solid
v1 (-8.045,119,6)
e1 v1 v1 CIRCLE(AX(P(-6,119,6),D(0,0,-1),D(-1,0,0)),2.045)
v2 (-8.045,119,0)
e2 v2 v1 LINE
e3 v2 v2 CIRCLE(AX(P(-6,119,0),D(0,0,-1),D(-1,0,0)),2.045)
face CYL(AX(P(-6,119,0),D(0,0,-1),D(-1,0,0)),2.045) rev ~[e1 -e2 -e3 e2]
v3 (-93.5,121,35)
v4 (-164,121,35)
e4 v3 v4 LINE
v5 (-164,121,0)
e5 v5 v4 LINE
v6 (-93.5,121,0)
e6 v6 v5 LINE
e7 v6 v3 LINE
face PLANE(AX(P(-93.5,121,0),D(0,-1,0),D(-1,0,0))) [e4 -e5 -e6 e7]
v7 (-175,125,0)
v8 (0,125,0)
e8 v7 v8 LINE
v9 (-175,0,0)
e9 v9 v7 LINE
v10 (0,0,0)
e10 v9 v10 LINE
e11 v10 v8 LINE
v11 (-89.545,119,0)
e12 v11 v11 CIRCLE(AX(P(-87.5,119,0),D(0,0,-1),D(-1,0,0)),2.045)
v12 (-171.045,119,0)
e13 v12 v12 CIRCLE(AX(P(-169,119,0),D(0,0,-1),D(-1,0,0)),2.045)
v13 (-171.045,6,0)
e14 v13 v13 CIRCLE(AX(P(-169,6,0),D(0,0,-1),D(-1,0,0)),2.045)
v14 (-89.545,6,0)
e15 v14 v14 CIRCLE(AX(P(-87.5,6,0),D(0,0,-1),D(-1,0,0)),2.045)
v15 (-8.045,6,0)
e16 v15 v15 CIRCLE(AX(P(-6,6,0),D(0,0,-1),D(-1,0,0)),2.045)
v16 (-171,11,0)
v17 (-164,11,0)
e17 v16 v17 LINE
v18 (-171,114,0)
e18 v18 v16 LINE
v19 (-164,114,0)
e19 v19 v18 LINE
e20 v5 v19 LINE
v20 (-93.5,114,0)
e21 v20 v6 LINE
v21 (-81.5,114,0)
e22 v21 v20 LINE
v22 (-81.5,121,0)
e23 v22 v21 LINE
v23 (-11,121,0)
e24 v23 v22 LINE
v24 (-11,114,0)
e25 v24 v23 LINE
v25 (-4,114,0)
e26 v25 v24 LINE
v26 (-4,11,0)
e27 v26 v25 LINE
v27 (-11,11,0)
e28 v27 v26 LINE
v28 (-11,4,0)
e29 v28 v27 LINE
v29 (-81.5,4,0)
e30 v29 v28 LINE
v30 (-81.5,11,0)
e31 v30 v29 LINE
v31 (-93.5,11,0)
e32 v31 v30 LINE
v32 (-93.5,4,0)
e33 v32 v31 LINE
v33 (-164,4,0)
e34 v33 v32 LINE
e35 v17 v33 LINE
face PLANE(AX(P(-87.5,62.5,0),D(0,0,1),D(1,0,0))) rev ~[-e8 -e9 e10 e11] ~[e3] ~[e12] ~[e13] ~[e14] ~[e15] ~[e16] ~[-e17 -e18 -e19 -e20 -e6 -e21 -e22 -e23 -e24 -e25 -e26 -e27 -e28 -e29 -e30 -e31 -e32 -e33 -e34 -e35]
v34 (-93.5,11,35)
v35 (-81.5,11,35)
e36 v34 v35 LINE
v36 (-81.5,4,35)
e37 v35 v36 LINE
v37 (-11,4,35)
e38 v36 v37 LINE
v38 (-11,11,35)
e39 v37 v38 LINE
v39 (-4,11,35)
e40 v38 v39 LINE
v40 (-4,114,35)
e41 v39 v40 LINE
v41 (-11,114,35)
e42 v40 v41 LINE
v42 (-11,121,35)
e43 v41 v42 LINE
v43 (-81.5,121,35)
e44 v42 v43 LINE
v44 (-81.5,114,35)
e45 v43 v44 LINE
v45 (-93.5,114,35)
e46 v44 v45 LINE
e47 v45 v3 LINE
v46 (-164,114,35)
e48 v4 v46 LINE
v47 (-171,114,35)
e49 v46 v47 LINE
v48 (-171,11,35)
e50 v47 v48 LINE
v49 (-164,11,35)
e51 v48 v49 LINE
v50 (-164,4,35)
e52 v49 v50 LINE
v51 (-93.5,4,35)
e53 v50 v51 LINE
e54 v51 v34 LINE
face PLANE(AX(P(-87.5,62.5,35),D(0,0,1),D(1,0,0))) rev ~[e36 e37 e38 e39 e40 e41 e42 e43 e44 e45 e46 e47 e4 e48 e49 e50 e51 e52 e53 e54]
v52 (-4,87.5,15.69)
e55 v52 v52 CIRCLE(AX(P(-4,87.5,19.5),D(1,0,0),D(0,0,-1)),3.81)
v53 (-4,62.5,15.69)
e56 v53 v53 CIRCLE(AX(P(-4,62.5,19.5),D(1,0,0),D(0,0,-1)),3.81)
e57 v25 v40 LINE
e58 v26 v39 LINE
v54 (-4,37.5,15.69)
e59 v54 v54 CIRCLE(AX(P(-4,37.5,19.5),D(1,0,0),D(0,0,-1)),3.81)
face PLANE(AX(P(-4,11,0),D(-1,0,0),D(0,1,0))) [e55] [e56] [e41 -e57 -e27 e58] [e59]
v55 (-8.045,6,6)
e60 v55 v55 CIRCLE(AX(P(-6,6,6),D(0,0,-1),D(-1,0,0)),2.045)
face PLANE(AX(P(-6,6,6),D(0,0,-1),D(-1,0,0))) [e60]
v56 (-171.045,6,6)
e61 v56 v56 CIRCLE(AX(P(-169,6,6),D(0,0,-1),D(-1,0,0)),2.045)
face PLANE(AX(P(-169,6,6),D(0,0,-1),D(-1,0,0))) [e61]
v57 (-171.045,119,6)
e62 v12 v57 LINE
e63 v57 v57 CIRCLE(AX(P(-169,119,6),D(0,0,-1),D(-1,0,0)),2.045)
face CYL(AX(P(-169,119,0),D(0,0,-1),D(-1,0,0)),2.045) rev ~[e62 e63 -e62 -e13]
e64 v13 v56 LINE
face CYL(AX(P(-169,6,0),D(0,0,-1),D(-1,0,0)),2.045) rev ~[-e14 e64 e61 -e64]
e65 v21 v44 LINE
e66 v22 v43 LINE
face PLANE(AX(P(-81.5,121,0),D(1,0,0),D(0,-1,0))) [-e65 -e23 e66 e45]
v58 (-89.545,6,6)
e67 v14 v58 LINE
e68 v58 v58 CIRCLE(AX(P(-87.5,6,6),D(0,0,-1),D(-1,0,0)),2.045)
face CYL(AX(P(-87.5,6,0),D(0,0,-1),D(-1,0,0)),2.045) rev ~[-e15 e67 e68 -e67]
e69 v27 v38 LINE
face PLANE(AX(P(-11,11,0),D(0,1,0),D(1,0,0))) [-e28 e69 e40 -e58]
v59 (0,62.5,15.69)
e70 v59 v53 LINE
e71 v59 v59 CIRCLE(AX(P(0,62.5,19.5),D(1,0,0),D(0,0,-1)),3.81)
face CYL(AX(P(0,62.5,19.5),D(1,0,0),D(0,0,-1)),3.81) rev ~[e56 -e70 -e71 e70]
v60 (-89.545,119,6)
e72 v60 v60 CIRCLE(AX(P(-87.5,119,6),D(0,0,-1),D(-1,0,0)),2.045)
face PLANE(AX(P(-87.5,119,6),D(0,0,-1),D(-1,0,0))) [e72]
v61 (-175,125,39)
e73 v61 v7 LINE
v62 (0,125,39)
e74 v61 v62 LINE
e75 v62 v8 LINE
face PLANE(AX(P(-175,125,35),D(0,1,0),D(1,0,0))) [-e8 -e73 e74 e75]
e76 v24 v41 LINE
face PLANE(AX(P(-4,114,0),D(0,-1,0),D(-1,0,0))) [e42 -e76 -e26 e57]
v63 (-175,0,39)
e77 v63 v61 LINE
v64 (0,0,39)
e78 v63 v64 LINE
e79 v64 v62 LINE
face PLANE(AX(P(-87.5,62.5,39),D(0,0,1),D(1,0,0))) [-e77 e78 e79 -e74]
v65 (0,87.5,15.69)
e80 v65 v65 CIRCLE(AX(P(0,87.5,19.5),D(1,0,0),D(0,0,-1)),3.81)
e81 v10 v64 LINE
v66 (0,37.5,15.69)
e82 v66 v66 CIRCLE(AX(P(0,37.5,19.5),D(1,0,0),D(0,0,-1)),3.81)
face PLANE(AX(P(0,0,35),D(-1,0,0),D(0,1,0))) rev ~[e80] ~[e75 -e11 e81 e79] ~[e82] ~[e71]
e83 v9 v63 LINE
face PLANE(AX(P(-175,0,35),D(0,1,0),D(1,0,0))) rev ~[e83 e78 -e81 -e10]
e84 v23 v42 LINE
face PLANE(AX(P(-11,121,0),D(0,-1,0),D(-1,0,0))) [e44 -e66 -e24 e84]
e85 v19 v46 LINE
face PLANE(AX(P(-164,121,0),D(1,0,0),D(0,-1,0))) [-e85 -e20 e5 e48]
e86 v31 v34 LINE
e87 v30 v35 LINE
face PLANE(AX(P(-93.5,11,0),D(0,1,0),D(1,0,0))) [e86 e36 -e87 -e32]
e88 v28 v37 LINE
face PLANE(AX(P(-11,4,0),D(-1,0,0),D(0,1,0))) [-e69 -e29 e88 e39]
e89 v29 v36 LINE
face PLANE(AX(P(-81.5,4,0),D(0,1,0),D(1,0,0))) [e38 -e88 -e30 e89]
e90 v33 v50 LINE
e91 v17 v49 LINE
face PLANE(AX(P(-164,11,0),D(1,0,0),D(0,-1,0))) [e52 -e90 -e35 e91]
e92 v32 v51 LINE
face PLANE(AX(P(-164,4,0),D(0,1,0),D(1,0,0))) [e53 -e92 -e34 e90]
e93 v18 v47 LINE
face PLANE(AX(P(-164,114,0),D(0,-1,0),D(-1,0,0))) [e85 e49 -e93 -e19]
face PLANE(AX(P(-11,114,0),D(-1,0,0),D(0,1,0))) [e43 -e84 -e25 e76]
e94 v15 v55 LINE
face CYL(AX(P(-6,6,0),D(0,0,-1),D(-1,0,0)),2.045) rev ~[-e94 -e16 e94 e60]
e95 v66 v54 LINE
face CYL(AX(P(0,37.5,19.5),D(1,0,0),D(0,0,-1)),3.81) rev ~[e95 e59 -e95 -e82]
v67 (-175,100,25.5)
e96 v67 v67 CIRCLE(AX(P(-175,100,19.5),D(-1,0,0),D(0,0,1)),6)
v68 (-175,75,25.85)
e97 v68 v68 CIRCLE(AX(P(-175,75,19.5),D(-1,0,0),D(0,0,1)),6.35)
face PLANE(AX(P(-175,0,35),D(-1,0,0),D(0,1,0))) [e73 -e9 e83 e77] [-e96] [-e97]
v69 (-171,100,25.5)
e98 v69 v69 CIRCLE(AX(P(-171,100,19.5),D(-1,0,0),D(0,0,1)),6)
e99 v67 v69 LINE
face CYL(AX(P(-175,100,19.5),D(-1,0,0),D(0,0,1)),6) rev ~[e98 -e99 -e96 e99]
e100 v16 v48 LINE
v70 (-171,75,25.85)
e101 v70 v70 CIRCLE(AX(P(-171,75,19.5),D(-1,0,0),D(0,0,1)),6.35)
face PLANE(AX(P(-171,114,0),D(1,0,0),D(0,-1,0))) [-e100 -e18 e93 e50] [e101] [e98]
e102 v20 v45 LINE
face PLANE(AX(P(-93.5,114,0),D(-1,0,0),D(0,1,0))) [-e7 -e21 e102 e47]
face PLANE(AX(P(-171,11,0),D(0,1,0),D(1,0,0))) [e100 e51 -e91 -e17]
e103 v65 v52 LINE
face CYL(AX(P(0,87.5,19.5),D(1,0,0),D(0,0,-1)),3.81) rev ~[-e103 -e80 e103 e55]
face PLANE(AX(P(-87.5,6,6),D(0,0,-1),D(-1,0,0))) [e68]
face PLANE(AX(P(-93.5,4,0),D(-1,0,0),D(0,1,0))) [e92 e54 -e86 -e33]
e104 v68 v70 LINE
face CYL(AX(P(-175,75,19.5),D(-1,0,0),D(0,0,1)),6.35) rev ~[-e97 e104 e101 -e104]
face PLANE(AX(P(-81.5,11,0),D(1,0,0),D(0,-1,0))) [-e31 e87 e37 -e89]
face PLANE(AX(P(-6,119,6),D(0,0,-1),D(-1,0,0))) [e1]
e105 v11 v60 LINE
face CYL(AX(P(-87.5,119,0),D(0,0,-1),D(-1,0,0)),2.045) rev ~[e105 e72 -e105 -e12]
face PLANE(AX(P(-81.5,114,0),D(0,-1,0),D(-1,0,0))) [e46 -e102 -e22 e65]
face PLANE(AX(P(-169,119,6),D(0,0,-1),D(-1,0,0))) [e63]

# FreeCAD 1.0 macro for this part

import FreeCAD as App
import Part
import Sketcher

V = App.Vector
Q = App.Units.Quantity


def add_polygon(sketch, points):
    """Adds a closed chain of lines whose ends are joined by coincident constraints."""
    first, n = sketch.GeometryCount, len(points)
    for a, b in zip(points, points[1:] + points[:1]):
        sketch.addGeometry(Part.LineSegment(App.Vector(*a, 0), App.Vector(*b, 0)), False)
    for i in range(n):
        sketch.addConstraint(Sketcher.Constraint("Coincident", first + i, 2, first + (i + 1) % n, 1))

doc = App.newDocument("Part")
body = doc.addObject("PartDesign::Body", "Body")

sketch1 = body.newObject("Sketcher::SketchObject", "Sketch")
sketch1.AttachmentSupport = (doc.getObject("XY_Plane"), [""])
sketch1.MapMode = "FlatFace"
add_polygon(sketch1, [(-175, 125), (-175, 0), (0, 0), (0, 125)])
add_polygon(sketch1, [(-164, 121), (-94, 121), (-94, 114), (-82, 114), (-82, 121), (-11, 121), (-11, 114), (-4, 114), (-4, 11), (-11, 11), (-11, 4), (-82, 4), (-82, 11), (-94, 11), (-94, 4), (-164, 4), (-164, 11), (-171, 11), (-171, 114), (-164, 114)])
sketch1.addConstraint([
    Sketcher.Constraint("Vertical", 0),
    Sketcher.Constraint("Horizontal", 1),
    Sketcher.Constraint("Vertical", 2),
    Sketcher.Constraint("Horizontal", 3),
    Sketcher.Constraint("Horizontal", 4),
    Sketcher.Constraint("Vertical", 5),
    Sketcher.Constraint("Horizontal", 6),
    Sketcher.Constraint("Vertical", 7),
    Sketcher.Constraint("Horizontal", 8),
    Sketcher.Constraint("Vertical", 9),
    Sketcher.Constraint("Horizontal", 10),
    Sketcher.Constraint("Vertical", 11),
    Sketcher.Constraint("Horizontal", 12),
    Sketcher.Constraint("Vertical", 13),
    Sketcher.Constraint("Horizontal", 14),
    Sketcher.Constraint("Vertical", 15),
    Sketcher.Constraint("Horizontal", 16),
    Sketcher.Constraint("Vertical", 17),
    Sketcher.Constraint("Horizontal", 18),
    Sketcher.Constraint("Vertical", 19),
    Sketcher.Constraint("Horizontal", 20),
    Sketcher.Constraint("Vertical", 21),
    Sketcher.Constraint("Horizontal", 22),
    Sketcher.Constraint("Vertical", 23),
    Sketcher.Constraint("Coincident", 1, 2, -1, 1),
    Sketcher.Constraint("Horizontal", 4, 2, 7, 2),
    Sketcher.Constraint("Horizontal", 6, 2, 9, 2),
    Sketcher.Constraint("Horizontal", 12, 2, 15, 2),
    Sketcher.Constraint("Horizontal", 14, 2, 17, 2),
    Sketcher.Constraint("Horizontal", 16, 2, 19, 2),
    Sketcher.Constraint("Horizontal", 10, 2, 21, 2),
    Sketcher.Constraint("Vertical", 9, 2, 12, 2),
    Sketcher.Constraint("Vertical", 7, 2, 14, 2),
    Sketcher.Constraint("Vertical", 5, 2, 16, 2),
    Sketcher.Constraint("Vertical", 19, 2, 22, 2),
    Sketcher.Constraint("Equal", 4, 8),
    Sketcher.Constraint("Equal", 12, 20),
    Sketcher.Constraint("Equal", 22, 5),
    Sketcher.Constraint("Equal", 9, 13),
    Sketcher.Constraint("DistanceX", 1, 1, 1, 2, Q("175 mm")),
    Sketcher.Constraint("DistanceX", 6, 1, 6, 2, Q("12 mm")),
    Sketcher.Constraint("DistanceX", 10, 1, 10, 2, Q("7 mm")),
    Sketcher.Constraint("DistanceY", 0, 2, 0, 1, Q("125 mm")),
    Sketcher.Constraint("DistanceY", 11, 2, 11, 1, Q("103 mm")),
    Sketcher.Constraint("DistanceX", 4, 1, 4, 2, Q("70.5 mm")),
    Sketcher.Constraint("DistanceY", -1, 1, 4, 2, Q("121 mm")),
    Sketcher.Constraint("DistanceX", 8, 2, -1, 1, Q("11 mm")),
])
pad1 = body.newObject("PartDesign::Pad", "Pad")
pad1.Profile = sketch1
pad1.Length = 35

sketch2 = body.newObject("Sketcher::SketchObject", "Sketch001")
sketch2.AttachmentSupport = (doc.getObject("XY_Plane"), [""])
sketch2.MapMode = "FlatFace"
sketch2.AttachmentOffset = App.Placement(V(0, 0, 35), App.Rotation())
add_polygon(sketch2, [(-175, 125), (-175, 0), (0, 0), (0, 125)])
sketch2.addConstraint([
    Sketcher.Constraint("Vertical", 0),
    Sketcher.Constraint("Horizontal", 1),
    Sketcher.Constraint("Vertical", 2),
    Sketcher.Constraint("Horizontal", 3),
    Sketcher.Constraint("Coincident", 1, 2, -1, 1),
    Sketcher.Constraint("DistanceX", 1, 1, 1, 2, Q("175 mm")),
    Sketcher.Constraint("DistanceY", 0, 2, 0, 1, Q("125 mm")),
])
pad2 = body.newObject("PartDesign::Pad", "Pad001")
pad2.Profile = sketch2
pad2.Length = 4

sketch3 = body.newObject("Sketcher::SketchObject", "Sketch002")
sketch3.AttachmentSupport = (doc.getObject("XY_Plane"), [""])
sketch3.MapMode = "FlatFace"
sketch3.addGeometry([
    Part.Circle(V(-6, 119, 0), V(0, 0, 1), 2),
    Part.Circle(V(-87.5, 119, 0), V(0, 0, 1), 2),
    Part.Circle(V(-169, 119, 0), V(0, 0, 1), 2),
    Part.Circle(V(-169, 6, 0), V(0, 0, 1), 2),
    Part.Circle(V(-87.5, 6, 0), V(0, 0, 1), 2),
    Part.Circle(V(-6, 6, 0), V(0, 0, 1), 2),
], False)
sketch3.addConstraint([
    Sketcher.Constraint("Equal", 0, 1),
    Sketcher.Constraint("Equal", 1, 2),
    Sketcher.Constraint("Equal", 2, 3),
    Sketcher.Constraint("Equal", 3, 4),
    Sketcher.Constraint("Equal", 4, 5),
    Sketcher.Constraint("Horizontal", 0, 3, 1, 3),
    Sketcher.Constraint("Horizontal", 1, 3, 2, 3),
    Sketcher.Constraint("Horizontal", 3, 3, 4, 3),
    Sketcher.Constraint("Horizontal", 4, 3, 5, 3),
    Sketcher.Constraint("Vertical", 2, 3, 3, 3),
    Sketcher.Constraint("Vertical", 1, 3, 4, 3),
    Sketcher.Constraint("Vertical", 0, 3, 5, 3),
    Sketcher.Constraint("Diameter", 0, Q("4.09 mm")),
    Sketcher.Constraint("DistanceX", 0, 3, -1, 1, Q("6 mm")),
    Sketcher.Constraint("DistanceY", -1, 1, 0, 3, Q("119 mm")),
    Sketcher.Constraint("DistanceX", 2, 3, -1, 1, Q("169 mm")),
    Sketcher.Constraint("DistanceY", -1, 1, 3, 3, Q("6 mm")),
    Sketcher.Constraint("DistanceX", 1, 3, -1, 1, Q("87.5 mm")),
])
pocket1 = body.newObject("PartDesign::Pocket", "Pocket")
pocket1.Profile = sketch3
pocket1.Length = 6
pocket1.Reversed = True

sketch4 = body.newObject("Sketcher::SketchObject", "Sketch003")
sketch4.AttachmentSupport = (doc.getObject("YZ_Plane"), [""])
sketch4.MapMode = "FlatFace"
sketch4.addGeometry([
    Part.Circle(V(87.5, 19.5, 0), V(0, 0, 1), 3.8),
    Part.Circle(V(62.5, 19.5, 0), V(0, 0, 1), 3.8),
    Part.Circle(V(37.5, 19.5, 0), V(0, 0, 1), 3.8),
], False)
sketch4.addConstraint([
    Sketcher.Constraint("Equal", 0, 1),
    Sketcher.Constraint("Equal", 1, 2),
    Sketcher.Constraint("Horizontal", 0, 3, 1, 3),
    Sketcher.Constraint("Horizontal", 1, 3, 2, 3),
    Sketcher.Constraint("Diameter", 0, Q("7.62 mm")),
    Sketcher.Constraint("DistanceX", 1, 3, 0, 3, Q("25 mm")),
    Sketcher.Constraint("DistanceX", 2, 3, 1, 3, Q("25 mm")),
    Sketcher.Constraint("DistanceX", -1, 1, 0, 3, Q("87.5 mm")),
    Sketcher.Constraint("DistanceY", -1, 1, 0, 3, Q("19.5 mm")),
])
pocket2 = body.newObject("PartDesign::Pocket", "Pocket001")
pocket2.Profile = sketch4
pocket2.Length = 10

sketch5 = body.newObject("Sketcher::SketchObject", "Sketch004")
sketch5.AttachmentSupport = (doc.getObject("YZ_Plane"), [""])
sketch5.MapMode = "FlatFace"
sketch5.AttachmentOffset = App.Placement(V(0, 0, -175), App.Rotation())
sketch5.addGeometry([
    Part.Circle(V(100, 20, 0), V(0, 0, 1), 6),
    Part.Circle(V(75, 20, 0), V(0, 0, 1), 6),
], False)
sketch5.addConstraint([
    Sketcher.Constraint("Horizontal", 0, 3, 1, 3),
    Sketcher.Constraint("Diameter", 0, Q("12 mm")),
    Sketcher.Constraint("Diameter", 1, Q("12.7 mm")),
    Sketcher.Constraint("DistanceX", -1, 1, 0, 3, Q("100 mm")),
    Sketcher.Constraint("DistanceX", -1, 1, 1, 3, Q("75 mm")),
    Sketcher.Constraint("DistanceY", -1, 1, 0, 3, Q("19.5 mm")),
])
pocket3 = body.newObject("PartDesign::Pocket", "Pocket002")
pocket3.Profile = sketch5
pocket3.Length = 10
pocket3.Reversed = True

doc.recompute()
